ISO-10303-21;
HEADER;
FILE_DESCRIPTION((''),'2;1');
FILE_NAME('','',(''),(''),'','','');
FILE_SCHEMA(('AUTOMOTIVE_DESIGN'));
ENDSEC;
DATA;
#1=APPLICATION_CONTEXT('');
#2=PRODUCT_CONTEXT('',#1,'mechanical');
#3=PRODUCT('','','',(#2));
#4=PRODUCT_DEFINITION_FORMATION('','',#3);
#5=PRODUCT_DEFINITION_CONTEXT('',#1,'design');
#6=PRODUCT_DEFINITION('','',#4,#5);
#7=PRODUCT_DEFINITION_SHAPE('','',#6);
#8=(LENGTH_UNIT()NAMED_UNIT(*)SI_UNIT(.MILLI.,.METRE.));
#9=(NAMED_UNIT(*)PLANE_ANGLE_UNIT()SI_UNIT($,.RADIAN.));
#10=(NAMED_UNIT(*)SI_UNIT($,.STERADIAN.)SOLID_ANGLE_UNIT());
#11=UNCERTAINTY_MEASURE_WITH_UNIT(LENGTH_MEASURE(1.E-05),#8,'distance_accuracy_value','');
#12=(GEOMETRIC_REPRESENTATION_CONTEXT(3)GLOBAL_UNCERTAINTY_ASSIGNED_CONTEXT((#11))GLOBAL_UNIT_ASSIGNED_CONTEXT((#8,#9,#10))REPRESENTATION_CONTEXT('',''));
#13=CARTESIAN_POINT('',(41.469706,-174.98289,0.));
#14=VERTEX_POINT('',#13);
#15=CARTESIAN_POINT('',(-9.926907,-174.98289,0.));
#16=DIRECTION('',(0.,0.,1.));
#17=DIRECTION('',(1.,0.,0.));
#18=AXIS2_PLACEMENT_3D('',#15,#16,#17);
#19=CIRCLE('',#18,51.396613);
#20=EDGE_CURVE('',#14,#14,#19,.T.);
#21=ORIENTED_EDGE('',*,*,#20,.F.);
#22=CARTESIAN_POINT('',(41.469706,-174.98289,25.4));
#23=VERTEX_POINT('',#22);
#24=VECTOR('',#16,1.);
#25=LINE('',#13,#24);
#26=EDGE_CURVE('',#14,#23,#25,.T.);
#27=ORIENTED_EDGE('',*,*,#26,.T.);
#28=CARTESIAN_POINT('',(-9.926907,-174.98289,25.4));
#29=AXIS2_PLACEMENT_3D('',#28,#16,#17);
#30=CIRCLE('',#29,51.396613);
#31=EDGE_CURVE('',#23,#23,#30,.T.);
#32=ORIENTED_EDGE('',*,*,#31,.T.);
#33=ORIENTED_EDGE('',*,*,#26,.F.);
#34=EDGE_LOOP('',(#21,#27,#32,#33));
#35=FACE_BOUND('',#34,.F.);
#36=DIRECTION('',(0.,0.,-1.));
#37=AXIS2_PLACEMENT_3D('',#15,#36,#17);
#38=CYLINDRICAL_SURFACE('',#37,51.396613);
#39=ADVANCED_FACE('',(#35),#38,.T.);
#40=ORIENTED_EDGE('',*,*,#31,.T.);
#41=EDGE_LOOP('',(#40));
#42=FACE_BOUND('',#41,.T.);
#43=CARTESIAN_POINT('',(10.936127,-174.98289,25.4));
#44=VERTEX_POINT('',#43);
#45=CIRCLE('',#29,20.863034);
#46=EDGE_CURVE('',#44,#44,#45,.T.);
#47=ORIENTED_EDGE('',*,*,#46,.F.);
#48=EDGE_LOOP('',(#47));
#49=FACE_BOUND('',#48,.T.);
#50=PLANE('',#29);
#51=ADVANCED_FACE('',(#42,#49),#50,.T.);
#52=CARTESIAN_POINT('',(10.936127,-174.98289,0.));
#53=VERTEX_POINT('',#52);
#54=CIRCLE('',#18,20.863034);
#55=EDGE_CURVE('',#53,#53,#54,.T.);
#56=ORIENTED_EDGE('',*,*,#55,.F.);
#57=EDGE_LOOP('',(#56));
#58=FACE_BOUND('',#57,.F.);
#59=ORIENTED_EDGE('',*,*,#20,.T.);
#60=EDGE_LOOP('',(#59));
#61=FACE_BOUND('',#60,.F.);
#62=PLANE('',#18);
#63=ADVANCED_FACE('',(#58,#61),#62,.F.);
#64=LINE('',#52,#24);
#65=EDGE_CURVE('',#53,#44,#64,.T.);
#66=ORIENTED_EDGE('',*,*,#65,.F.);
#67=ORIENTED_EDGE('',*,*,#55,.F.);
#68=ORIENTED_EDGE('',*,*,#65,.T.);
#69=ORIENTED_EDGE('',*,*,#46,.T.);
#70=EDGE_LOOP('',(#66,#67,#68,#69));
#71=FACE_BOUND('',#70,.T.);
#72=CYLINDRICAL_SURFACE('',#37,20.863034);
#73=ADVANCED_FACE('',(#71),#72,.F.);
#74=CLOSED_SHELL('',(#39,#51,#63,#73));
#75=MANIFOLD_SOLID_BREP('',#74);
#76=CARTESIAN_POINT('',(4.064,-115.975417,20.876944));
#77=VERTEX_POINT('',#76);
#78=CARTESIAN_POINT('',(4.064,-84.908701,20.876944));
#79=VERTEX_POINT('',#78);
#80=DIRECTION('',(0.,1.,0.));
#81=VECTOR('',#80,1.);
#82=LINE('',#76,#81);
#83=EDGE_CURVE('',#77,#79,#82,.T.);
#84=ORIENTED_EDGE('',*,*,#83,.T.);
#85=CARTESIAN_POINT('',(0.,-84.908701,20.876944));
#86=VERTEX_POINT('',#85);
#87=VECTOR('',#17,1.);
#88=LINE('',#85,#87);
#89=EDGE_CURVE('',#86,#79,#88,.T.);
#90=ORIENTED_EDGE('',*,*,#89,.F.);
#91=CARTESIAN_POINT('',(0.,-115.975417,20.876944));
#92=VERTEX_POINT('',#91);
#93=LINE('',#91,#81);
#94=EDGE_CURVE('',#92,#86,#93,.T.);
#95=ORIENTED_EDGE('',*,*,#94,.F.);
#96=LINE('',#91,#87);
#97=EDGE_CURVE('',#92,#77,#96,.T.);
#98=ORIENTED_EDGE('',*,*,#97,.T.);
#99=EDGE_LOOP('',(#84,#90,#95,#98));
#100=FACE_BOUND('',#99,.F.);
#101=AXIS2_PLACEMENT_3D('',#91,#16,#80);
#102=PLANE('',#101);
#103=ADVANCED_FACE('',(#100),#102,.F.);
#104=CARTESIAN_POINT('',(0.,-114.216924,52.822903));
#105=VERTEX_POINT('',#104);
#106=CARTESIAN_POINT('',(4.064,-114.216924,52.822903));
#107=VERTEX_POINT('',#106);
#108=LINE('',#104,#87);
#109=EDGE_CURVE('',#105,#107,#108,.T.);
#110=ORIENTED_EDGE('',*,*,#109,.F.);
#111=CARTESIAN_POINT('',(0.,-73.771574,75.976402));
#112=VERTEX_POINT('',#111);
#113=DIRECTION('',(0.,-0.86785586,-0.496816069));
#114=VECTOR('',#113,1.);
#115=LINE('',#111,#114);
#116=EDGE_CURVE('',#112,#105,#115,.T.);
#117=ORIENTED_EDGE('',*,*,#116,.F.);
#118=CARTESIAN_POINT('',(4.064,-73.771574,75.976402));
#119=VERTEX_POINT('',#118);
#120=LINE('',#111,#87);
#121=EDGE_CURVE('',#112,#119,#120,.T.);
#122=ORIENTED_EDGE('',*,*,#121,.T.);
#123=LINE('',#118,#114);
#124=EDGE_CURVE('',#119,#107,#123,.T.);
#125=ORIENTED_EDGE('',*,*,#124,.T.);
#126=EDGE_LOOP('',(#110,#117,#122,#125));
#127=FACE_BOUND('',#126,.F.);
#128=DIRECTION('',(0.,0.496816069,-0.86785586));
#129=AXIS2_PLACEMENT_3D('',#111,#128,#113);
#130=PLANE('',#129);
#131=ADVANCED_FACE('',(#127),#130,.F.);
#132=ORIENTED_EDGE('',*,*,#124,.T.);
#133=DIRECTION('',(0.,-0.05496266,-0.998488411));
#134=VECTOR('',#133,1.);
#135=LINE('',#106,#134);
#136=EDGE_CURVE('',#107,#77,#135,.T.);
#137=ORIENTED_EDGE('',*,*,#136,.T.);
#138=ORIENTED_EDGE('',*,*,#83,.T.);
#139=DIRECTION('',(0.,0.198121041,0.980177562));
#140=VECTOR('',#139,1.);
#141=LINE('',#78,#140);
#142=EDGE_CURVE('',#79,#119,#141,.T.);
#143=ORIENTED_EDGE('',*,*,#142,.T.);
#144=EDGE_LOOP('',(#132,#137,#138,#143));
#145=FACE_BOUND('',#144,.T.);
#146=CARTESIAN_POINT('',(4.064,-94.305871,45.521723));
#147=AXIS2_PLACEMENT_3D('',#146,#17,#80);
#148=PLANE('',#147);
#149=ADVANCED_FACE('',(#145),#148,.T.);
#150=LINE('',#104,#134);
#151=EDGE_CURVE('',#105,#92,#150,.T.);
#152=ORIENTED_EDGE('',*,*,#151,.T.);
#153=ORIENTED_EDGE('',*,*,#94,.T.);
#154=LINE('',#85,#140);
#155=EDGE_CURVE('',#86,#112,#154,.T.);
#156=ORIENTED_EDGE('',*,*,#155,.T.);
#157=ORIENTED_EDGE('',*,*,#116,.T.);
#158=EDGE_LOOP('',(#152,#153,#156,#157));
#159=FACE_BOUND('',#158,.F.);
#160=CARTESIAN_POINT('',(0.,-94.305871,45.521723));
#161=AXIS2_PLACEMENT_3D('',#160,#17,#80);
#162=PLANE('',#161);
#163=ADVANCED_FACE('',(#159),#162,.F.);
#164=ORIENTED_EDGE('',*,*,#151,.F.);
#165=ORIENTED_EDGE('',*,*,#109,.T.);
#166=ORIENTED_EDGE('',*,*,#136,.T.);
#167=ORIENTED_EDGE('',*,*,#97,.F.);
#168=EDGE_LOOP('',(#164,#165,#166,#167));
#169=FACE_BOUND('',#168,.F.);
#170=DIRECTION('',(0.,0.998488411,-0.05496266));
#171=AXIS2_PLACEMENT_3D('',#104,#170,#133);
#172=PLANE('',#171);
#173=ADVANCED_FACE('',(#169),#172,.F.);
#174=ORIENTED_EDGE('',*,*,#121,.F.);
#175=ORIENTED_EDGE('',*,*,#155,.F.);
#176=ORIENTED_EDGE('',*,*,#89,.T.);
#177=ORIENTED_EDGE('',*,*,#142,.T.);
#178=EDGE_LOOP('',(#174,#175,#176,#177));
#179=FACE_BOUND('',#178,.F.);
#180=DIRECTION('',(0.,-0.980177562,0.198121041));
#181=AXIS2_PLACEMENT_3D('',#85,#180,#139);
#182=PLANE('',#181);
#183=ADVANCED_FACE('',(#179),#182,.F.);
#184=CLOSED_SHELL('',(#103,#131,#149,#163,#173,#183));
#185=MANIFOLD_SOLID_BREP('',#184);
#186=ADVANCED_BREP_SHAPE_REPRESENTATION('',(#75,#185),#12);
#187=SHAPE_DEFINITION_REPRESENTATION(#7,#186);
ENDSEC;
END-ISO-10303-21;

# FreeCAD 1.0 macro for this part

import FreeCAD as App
import Part
import Sketcher
Q = App.Units.Quantity


def add_polygon(sketch, points):
    """Adds a closed chain of lines whose ends are joined by coincident constraints."""
    first, n = sketch.GeometryCount, len(points)
    for a, b in zip(points, points[1:] + points[:1]):
        sketch.addGeometry(Part.LineSegment(App.Vector(*a, 0), App.Vector(*b, 0)), False)
    for i in range(n):
        sketch.addConstraint(Sketcher.Constraint("Coincident", first + i, 2, first + (i + 1) % n, 1))

doc = App.newDocument("Part")
body = doc.addObject("PartDesign::Body", "Body")

sketch1 = body.newObject("Sketcher::SketchObject", "Sketch")
sketch1.AttachmentSupport = (doc.getObject("XY_Plane"), [""])
sketch1.MapMode = "FlatFace"
sketch1.addGeometry(Part.Circle(App.Vector(-9.926907, -174.98289, 0), App.Vector(0, 0, 1), 51.396613), False)
sketch1.addGeometry(Part.Circle(App.Vector(-9.926907, -174.98289, 0), App.Vector(0, 0, 1), 20.863034), False)
sketch1.addConstraint(Sketcher.Constraint("Coincident", 1, 3, 0, 3))
sketch1.addConstraint(Sketcher.Constraint("Diameter", 0, 102.793226))
sketch1.addConstraint(Sketcher.Constraint("Diameter", 1, 41.726068))
sketch1.addConstraint(Sketcher.Constraint("DistanceY", 0, 3, -1, 1, 174.98289))
sketch1.addConstraint(Sketcher.Constraint("DistanceX", 0, 3, -1, 1, 9.926907))
pad1 = body.newObject("PartDesign::Pad", "Pad")
pad1.Profile = sketch1
pad1.Length = Q("1 in")
body2 = doc.addObject("PartDesign::Body", "Body001")

sketch2 = body2.newObject("Sketcher::SketchObject", "Sketch001")
sketch2.AttachmentSupport = (doc.getObject("YZ_Plane001"), [""])
sketch2.MapMode = "FlatFace"
add_polygon(sketch2, [(-114.216924, 52.822903), (-115.975417, 20.876944), (-84.908701, 20.876944), (-73.771574, 75.976402)])
sketch2.addConstraint(Sketcher.Constraint("Horizontal", 1))
sketch2.addConstraint(Sketcher.Constraint("DistanceX", 1, 2, -1, 1, 84.908701))
sketch2.addConstraint(Sketcher.Constraint("DistanceY", -1, 1, 2, 2, 75.976402))
sketch2.addConstraint(Sketcher.Constraint("DistanceY", 3, 2, 2, 2, 23.153499))
sketch2.addConstraint(Sketcher.Constraint("Distance", 0, 31.994321))
sketch2.addConstraint(Sketcher.Constraint("Distance", 2, 56.213752))
sketch2.addConstraint(Sketcher.Constraint("DistanceX", 1, 1, 1, 2, 31.066716))
sketch2.addConstraint(Sketcher.Constraint("DistanceY", 0, 2, 3, 2, 31.945959))
pad2 = body2.newObject("PartDesign::Pad", "Pad001")
pad2.Profile = sketch2
pad2.Length = Q("0.16 in")

doc.recompute()
